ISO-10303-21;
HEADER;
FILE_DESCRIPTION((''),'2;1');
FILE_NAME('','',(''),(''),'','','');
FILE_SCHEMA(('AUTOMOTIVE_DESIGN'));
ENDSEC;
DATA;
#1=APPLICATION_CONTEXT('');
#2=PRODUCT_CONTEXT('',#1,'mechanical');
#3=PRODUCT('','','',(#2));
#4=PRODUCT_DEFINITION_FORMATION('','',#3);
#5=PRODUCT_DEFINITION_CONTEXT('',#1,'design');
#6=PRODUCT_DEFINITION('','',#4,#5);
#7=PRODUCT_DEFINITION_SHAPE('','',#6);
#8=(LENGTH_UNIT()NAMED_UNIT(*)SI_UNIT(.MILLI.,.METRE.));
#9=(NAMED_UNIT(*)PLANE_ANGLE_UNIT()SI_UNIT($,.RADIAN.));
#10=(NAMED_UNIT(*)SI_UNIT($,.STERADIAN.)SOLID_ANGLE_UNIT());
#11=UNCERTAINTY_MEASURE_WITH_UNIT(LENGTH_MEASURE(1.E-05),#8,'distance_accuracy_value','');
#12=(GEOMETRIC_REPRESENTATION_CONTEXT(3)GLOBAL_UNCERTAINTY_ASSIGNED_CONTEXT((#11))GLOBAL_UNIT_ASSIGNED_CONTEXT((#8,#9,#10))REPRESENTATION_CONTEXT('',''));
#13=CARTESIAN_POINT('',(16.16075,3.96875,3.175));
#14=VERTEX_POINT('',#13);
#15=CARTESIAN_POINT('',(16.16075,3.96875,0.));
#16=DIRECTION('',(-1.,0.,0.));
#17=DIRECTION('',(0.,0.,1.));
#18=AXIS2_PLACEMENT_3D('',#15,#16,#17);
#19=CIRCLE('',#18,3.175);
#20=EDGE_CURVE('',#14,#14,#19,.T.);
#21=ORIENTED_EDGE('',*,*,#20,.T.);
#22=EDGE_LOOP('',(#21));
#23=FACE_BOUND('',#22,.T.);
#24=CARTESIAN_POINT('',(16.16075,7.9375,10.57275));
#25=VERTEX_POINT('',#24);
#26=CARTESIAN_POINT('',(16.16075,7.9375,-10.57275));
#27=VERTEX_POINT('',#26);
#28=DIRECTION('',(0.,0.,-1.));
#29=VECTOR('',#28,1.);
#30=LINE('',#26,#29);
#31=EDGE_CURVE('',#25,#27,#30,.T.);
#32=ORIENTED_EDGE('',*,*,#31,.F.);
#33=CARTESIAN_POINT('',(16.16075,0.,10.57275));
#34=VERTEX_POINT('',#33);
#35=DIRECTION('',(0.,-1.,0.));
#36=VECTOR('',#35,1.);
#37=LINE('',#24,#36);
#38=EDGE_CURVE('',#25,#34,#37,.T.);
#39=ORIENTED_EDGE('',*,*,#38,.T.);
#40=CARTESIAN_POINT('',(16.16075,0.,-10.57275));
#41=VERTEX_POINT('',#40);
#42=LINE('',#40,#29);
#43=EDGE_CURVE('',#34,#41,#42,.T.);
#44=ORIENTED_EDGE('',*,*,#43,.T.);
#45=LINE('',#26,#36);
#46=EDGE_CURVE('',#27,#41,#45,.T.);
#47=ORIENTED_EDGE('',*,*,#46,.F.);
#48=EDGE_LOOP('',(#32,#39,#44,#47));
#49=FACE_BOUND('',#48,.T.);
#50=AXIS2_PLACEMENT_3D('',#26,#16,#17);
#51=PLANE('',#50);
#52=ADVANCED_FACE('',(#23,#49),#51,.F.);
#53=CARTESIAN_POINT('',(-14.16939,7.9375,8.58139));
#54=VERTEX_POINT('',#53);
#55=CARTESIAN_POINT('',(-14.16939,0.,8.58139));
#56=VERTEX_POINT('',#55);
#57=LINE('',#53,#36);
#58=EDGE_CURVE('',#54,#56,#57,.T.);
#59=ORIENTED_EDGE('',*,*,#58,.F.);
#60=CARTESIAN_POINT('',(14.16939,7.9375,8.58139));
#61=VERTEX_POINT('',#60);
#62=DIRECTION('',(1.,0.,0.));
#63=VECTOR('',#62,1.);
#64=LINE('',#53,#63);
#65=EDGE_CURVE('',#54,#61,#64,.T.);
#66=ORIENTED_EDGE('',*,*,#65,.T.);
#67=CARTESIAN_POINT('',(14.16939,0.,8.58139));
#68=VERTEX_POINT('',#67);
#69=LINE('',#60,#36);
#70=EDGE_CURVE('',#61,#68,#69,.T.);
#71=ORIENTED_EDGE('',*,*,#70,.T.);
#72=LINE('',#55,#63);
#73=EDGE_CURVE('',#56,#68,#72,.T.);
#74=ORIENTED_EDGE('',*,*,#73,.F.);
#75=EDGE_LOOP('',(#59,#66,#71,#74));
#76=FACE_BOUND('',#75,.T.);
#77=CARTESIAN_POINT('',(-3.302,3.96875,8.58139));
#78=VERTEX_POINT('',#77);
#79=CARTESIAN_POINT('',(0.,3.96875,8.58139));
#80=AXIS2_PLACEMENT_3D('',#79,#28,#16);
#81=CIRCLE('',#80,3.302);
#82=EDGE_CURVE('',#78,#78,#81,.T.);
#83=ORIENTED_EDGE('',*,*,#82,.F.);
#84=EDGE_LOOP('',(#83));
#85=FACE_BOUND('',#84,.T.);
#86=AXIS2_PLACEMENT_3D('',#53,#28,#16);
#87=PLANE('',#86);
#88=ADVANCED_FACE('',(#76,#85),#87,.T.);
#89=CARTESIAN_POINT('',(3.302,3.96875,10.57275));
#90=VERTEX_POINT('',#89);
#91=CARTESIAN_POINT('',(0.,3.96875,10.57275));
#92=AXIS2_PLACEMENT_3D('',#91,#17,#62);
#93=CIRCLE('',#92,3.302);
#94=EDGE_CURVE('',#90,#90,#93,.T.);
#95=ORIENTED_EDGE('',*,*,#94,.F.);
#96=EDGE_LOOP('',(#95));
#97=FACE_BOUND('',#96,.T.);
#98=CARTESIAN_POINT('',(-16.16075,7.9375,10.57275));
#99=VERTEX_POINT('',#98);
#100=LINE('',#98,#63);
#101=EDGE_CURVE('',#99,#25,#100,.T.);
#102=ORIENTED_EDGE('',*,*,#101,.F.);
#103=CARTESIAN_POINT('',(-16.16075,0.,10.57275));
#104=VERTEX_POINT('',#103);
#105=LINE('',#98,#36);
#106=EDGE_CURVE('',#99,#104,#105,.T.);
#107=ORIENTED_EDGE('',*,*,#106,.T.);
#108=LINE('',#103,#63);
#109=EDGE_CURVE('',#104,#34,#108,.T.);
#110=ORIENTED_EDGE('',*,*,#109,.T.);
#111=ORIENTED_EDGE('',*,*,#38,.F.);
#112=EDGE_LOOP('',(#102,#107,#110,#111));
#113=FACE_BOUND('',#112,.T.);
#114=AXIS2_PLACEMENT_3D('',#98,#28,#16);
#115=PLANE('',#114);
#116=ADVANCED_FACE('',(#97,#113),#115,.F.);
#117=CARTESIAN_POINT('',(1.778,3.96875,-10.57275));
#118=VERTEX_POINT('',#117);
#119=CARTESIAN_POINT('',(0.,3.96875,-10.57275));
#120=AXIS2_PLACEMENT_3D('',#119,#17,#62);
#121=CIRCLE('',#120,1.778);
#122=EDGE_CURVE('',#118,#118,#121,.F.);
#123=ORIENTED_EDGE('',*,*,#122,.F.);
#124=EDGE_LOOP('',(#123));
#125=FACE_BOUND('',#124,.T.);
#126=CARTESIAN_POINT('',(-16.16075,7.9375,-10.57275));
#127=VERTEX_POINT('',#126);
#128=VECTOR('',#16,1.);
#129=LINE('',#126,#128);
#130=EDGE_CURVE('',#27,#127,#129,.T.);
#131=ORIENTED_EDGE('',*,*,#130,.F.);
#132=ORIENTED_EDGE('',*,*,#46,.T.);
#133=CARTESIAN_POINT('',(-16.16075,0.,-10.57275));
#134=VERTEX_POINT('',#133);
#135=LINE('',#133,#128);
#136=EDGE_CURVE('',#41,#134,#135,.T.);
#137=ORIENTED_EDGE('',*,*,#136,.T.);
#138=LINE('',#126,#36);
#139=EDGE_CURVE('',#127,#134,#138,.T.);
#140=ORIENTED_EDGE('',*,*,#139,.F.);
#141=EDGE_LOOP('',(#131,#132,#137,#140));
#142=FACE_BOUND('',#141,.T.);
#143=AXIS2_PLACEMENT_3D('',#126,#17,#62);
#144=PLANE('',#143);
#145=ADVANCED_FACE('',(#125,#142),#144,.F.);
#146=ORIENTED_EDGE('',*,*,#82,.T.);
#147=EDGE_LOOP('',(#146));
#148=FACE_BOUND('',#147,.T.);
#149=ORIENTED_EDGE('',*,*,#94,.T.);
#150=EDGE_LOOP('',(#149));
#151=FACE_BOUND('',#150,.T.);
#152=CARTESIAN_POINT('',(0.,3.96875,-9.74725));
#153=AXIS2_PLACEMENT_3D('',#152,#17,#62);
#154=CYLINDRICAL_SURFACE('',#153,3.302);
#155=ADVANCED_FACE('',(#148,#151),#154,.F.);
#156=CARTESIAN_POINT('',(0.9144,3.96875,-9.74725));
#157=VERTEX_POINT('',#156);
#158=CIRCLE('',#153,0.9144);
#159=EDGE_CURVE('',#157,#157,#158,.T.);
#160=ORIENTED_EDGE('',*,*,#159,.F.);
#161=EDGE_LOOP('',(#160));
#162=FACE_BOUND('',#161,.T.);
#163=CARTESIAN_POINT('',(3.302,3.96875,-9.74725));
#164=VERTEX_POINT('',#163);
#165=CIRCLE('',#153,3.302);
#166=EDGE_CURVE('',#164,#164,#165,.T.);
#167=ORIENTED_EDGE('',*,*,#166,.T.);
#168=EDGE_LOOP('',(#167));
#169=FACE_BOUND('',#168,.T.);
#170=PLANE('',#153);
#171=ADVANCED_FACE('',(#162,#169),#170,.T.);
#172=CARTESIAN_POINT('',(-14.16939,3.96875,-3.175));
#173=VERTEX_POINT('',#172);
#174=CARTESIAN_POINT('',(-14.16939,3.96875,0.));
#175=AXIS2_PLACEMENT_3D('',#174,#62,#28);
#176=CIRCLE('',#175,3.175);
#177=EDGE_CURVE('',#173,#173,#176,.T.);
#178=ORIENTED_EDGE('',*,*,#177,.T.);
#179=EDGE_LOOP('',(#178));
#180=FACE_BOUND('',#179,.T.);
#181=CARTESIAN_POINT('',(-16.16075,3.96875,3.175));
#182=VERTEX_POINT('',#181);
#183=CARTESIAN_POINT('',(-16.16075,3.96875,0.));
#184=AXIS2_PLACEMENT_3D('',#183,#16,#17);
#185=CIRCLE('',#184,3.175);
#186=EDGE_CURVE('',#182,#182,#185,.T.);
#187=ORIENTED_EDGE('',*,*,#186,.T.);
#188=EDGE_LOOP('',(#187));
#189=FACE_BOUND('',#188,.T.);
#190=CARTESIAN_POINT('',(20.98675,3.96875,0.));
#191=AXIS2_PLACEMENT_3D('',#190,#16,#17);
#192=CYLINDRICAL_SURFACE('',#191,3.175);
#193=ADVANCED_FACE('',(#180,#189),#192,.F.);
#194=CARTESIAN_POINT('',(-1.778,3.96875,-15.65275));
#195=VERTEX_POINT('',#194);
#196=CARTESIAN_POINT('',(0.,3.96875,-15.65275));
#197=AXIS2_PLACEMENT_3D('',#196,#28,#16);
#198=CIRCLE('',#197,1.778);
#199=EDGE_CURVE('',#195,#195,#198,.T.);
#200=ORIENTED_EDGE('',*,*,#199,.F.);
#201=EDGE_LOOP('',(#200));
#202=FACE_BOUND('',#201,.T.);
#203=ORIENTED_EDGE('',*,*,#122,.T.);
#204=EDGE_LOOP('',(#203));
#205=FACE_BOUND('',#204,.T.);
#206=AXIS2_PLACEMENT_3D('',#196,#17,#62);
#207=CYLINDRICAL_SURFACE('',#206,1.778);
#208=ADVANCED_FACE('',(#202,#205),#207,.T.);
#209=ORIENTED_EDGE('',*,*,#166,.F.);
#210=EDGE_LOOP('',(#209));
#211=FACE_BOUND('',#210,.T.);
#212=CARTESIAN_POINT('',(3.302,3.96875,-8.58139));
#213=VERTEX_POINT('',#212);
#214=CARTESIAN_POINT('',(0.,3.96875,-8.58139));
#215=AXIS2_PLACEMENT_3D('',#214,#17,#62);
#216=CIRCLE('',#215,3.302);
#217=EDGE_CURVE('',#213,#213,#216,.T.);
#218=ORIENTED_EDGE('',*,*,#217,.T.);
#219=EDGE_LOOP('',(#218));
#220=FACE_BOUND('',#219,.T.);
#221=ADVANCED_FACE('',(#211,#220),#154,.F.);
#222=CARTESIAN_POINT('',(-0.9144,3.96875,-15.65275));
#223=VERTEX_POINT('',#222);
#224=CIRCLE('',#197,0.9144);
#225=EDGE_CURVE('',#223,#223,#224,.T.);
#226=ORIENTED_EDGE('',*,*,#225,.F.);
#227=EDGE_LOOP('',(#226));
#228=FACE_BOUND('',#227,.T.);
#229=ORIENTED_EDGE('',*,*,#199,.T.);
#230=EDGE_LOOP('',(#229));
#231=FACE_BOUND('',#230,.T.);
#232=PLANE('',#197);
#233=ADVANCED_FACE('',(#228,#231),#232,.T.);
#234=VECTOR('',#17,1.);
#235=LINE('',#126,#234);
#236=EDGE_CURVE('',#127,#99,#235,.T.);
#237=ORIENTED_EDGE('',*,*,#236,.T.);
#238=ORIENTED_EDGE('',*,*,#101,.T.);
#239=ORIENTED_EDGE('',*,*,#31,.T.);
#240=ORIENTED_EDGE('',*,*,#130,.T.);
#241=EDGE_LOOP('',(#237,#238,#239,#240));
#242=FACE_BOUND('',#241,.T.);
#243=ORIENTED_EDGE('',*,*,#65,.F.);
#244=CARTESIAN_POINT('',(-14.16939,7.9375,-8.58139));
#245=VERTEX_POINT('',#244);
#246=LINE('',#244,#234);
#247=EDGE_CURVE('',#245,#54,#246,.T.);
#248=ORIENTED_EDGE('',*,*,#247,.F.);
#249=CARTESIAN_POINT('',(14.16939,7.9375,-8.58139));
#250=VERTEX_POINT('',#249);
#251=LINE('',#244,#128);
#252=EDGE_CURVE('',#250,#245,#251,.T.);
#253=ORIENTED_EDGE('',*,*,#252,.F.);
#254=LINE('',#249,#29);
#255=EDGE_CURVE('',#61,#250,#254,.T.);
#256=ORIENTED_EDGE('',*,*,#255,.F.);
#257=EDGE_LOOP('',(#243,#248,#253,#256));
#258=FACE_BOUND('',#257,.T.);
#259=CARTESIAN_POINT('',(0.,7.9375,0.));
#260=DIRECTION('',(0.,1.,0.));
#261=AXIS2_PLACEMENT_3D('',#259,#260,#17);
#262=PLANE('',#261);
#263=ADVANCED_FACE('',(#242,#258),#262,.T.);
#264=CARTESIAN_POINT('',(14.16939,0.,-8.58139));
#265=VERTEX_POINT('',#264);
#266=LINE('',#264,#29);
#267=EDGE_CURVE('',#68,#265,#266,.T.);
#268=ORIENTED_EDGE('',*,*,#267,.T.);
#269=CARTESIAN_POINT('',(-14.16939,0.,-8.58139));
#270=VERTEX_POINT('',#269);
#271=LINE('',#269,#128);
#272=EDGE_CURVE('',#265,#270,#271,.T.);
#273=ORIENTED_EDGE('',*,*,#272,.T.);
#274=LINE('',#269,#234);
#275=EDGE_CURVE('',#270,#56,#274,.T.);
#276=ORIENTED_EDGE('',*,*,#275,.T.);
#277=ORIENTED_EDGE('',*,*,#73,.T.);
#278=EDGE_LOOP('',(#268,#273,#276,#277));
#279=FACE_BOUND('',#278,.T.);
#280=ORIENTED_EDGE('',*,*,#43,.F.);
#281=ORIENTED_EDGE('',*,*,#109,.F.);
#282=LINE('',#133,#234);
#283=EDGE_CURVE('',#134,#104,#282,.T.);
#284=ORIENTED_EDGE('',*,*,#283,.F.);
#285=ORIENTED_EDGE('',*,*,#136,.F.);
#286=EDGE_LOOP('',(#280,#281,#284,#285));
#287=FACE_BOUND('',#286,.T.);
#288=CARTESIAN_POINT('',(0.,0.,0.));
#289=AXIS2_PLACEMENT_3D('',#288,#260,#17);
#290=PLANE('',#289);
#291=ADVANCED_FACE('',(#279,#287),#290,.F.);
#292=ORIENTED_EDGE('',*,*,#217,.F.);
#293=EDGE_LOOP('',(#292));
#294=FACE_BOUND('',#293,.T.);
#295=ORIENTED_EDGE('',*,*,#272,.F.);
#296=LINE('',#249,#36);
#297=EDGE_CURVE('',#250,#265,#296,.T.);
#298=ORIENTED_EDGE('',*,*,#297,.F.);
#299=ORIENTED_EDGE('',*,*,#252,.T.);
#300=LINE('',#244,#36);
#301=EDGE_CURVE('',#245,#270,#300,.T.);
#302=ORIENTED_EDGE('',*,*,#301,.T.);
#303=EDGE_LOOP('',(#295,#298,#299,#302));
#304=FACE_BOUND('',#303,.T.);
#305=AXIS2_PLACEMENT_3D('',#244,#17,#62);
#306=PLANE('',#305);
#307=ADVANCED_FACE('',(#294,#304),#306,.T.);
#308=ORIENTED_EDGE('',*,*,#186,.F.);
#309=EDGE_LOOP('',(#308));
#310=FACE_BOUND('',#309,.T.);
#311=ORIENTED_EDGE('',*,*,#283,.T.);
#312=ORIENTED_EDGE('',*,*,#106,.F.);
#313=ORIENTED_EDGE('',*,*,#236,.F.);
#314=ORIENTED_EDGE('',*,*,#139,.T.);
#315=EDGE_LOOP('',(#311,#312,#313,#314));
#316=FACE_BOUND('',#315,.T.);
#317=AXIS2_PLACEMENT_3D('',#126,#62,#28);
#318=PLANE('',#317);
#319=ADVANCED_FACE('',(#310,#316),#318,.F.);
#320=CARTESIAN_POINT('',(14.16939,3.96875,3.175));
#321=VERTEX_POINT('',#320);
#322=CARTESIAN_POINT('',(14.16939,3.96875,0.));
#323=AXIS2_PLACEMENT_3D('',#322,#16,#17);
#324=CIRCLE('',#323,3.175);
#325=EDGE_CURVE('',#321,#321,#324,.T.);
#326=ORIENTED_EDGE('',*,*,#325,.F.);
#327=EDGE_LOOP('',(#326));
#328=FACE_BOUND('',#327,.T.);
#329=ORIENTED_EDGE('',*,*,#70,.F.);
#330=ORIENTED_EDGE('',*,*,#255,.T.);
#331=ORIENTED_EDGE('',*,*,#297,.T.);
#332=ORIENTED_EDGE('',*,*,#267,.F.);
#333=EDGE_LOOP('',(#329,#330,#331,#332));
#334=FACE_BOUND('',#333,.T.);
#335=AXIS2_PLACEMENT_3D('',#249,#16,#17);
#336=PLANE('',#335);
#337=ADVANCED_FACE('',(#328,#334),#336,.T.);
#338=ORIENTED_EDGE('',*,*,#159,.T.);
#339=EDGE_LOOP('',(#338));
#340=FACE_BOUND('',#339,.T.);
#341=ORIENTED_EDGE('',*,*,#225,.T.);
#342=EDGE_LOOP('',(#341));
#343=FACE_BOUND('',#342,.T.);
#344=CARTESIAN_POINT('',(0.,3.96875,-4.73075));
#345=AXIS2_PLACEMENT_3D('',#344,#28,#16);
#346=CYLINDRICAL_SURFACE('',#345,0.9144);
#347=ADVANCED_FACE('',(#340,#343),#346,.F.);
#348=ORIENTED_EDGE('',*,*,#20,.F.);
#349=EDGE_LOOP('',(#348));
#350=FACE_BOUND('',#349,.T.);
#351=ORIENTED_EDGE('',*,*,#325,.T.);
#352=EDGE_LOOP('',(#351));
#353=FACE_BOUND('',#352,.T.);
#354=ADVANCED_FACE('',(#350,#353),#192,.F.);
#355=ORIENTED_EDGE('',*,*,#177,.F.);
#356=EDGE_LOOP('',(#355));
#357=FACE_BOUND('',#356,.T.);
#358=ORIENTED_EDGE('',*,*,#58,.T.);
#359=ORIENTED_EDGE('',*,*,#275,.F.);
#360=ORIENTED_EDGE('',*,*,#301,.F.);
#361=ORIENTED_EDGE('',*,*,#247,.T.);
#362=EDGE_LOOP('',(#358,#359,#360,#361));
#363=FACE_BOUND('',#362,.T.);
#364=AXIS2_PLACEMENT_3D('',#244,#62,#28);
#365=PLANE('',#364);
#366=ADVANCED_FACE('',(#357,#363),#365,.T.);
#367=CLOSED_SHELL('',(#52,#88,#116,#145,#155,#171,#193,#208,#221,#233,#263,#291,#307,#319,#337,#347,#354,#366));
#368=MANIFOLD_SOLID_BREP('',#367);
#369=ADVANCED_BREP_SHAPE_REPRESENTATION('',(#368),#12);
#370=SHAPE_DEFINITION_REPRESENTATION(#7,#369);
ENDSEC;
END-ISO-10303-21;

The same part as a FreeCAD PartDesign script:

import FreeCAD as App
import Part
import Sketcher

V = App.Vector
Q = App.Units.Quantity

doc = App.newDocument("Part")
params = doc.addObject("Spreadsheet::Sheet", "Params")
for row, (alias, value) in enumerate([
    ("pad1_length", "0.3125 in"),
    ("sketch2_diameter", "0.25 in"),
    ("pocket1_length", "1.4625 in"),
    ("sketch3_diameter", "0.26 in"),
    ("pocket2_length", "0.8 in"),
    ("sketch4_diameter", "0.14 in"),
    ("pad2_length", "0.2 in"),
    ("sketch5_diameter", "0.072 in"),
    ("pocket3_length", "0.43 in"),
], start=1):
    params.set(f"A{row}", alias)
    params.set(f"B{row}", "=" + value)
    params.setAlias(f"B{row}", alias)

body = doc.addObject("PartDesign::Body", "Body")

# Sketch on XZ plane
sketch1 = body.newObject("Sketcher::SketchObject", "Sketch")
sketch1.AttachmentSupport = (doc.getObject("XZ_Plane"), [""])
sketch1.MapMode = "FlatFace"
sketch1.addGeometry(Part.LineSegment(V(-16, -11, 0), V(-16, 11, 0)), False)
sketch1.addGeometry(Part.LineSegment(V(-16, 11, 0), V(16, 11, 0)), False)
sketch1.addGeometry(Part.LineSegment(V(16, 11, 0), V(16, -11, 0)), False)
sketch1.addGeometry(Part.LineSegment(V(16, -11, 0), V(-16, -11, 0)), False)
sketch1.addGeometry(Part.LineSegment(V(14, 9, 0), V(-14, 9, 0)), False)
sketch1.addGeometry(Part.LineSegment(V(-14, 9, 0), V(-14, -9, 0)), False)
sketch1.addGeometry(Part.LineSegment(V(-14, -9, 0), V(14, -9, 0)), False)
sketch1.addGeometry(Part.LineSegment(V(14, -9, 0), V(14, 9, 0)), False)
sketch1.addConstraint(Sketcher.Constraint("Coincident", 0, 2, 1, 1))
sketch1.addConstraint(Sketcher.Constraint("Coincident", 1, 2, 2, 1))
sketch1.addConstraint(Sketcher.Constraint("Coincident", 2, 2, 3, 1))
sketch1.addConstraint(Sketcher.Constraint("Coincident", 3, 2, 0, 1))
sketch1.addConstraint(Sketcher.Constraint("Coincident", 4, 2, 5, 1))
sketch1.addConstraint(Sketcher.Constraint("Coincident", 5, 2, 6, 1))
sketch1.addConstraint(Sketcher.Constraint("Coincident", 6, 2, 7, 1))
sketch1.addConstraint(Sketcher.Constraint("Coincident", 7, 2, 4, 1))
sketch1.addConstraint(Sketcher.Constraint("Vertical", 0))
sketch1.addConstraint(Sketcher.Constraint("Horizontal", 1))
sketch1.addConstraint(Sketcher.Constraint("Vertical", 2))
sketch1.addConstraint(Sketcher.Constraint("Horizontal", 3))
sketch1.addConstraint(Sketcher.Constraint("Horizontal", 4))
sketch1.addConstraint(Sketcher.Constraint("Vertical", 5))
sketch1.addConstraint(Sketcher.Constraint("Horizontal", 6))
sketch1.addConstraint(Sketcher.Constraint("Vertical", 7))
sketch1.addConstraint(Sketcher.Constraint("Symmetric", 0, 2, 2, 2, -1, 1))
sketch1.addConstraint(Sketcher.Constraint("Symmetric", 4, 2, 6, 2, -1, 1))
sketch1.addConstraint(Sketcher.Constraint("DistanceX", 1, 1, 1, 2, Q("1.2725 in")))
sketch1.addConstraint(Sketcher.Constraint("DistanceX", 4, 2, 4, 1, Q("1.1157 in")))
sketch1.addConstraint(Sketcher.Constraint("DistanceY", 0, 1, 0, 2, Q("0.8325 in")))
sketch1.addConstraint(Sketcher.Constraint("DistanceY", 5, 2, 5, 1, Q("0.6757 in")))
pad1 = body.newObject("PartDesign::Pad", "Pad")
pad1.Profile = sketch1
pad1.setExpression("Length", "Params.pad1_length")
pad1.Reversed = True

# Sketch on YZ plane
sketch2 = body.newObject("Sketcher::SketchObject", "Sketch001")
sketch2.AttachmentSupport = (doc.getObject("YZ_Plane"), [""])
sketch2.MapMode = "FlatFace"
sketch2.AttachmentOffset = App.Placement(V(0, 0, -16.16075), App.Rotation())
sketch2.addGeometry(Part.Circle(V(4, 0, 0), V(0, 0, 1), 3.2), False)
sketch2.addConstraint(Sketcher.Constraint("PointOnObject", 0, 3, -1))
sketch2.addConstraint(Sketcher.Constraint("Diameter", 0, Q("0.25 in")))
sketch2.addConstraint(Sketcher.Constraint("DistanceX", -1, 1, 0, 3, Q("0.15625 in")))
sketch2.setExpression("Constraints[1]", "Params.sketch2_diameter")
pocket1 = body.newObject("PartDesign::Pocket", "Pocket")
pocket1.Profile = sketch2
pocket1.setExpression("Length", "Params.pocket1_length")
pocket1.Reversed = True

# Sketch on XY plane
sketch3 = body.newObject("Sketcher::SketchObject", "Sketch002")
sketch3.AttachmentSupport = (doc.getObject("XY_Plane"), [""])
sketch3.MapMode = "FlatFace"
sketch3.AttachmentOffset = App.Placement(V(0, 0, 10.57275), App.Rotation())
sketch3.addGeometry(Part.Circle(V(0, 4, 0), V(0, 0, 1), 3.3), False)
sketch3.addConstraint(Sketcher.Constraint("PointOnObject", 0, 3, -2))
sketch3.addConstraint(Sketcher.Constraint("Diameter", 0, Q("0.26 in")))
sketch3.addConstraint(Sketcher.Constraint("DistanceY", -1, 1, 0, 3, Q("0.15625 in")))
sketch3.setExpression("Constraints[1]", "Params.sketch3_diameter")
pocket2 = body.newObject("PartDesign::Pocket", "Pocket001")
pocket2.Profile = sketch3
pocket2.setExpression("Length", "Params.pocket2_length")

# Sketch on XY plane
sketch4 = body.newObject("Sketcher::SketchObject", "Sketch003")
sketch4.AttachmentSupport = (doc.getObject("XY_Plane"), [""])
sketch4.MapMode = "FlatFace"
sketch4.AttachmentOffset = App.Placement(V(0, 0, -10.57275), App.Rotation())
sketch4.addGeometry(Part.Circle(V(0, 4, 0), V(0, 0, 1), 1.8), False)
sketch4.addConstraint(Sketcher.Constraint("PointOnObject", 0, 3, -2))
sketch4.addConstraint(Sketcher.Constraint("Diameter", 0, Q("0.14 in")))
sketch4.addConstraint(Sketcher.Constraint("DistanceY", -1, 1, 0, 3, Q("0.15625 in")))
sketch4.setExpression("Constraints[1]", "Params.sketch4_diameter")
pad2 = body.newObject("PartDesign::Pad", "Pad001")
pad2.Profile = sketch4
pad2.setExpression("Length", "Params.pad2_length")
pad2.Reversed = True

# Sketch on XY plane
sketch5 = body.newObject("Sketcher::SketchObject", "Sketch004")
sketch5.AttachmentSupport = (doc.getObject("XY_Plane"), [""])
sketch5.MapMode = "FlatFace"
sketch5.AttachmentOffset = App.Placement(V(0, 0, -15.65275), App.Rotation())
sketch5.addGeometry(Part.Circle(V(0, 4, 0), V(0, 0, 1), 0.9), False)
sketch5.addConstraint(Sketcher.Constraint("PointOnObject", 0, 3, -2))
sketch5.addConstraint(Sketcher.Constraint("Diameter", 0, Q("0.072 in")))
sketch5.addConstraint(Sketcher.Constraint("DistanceY", -1, 1, 0, 3, Q("0.15625 in")))
sketch5.setExpression("Constraints[1]", "Params.sketch5_diameter")
pocket3 = body.newObject("PartDesign::Pocket", "Pocket002")
pocket3.Profile = sketch5
pocket3.setExpression("Length", "Params.pocket3_length")
pocket3.Reversed = True

doc.recompute()
